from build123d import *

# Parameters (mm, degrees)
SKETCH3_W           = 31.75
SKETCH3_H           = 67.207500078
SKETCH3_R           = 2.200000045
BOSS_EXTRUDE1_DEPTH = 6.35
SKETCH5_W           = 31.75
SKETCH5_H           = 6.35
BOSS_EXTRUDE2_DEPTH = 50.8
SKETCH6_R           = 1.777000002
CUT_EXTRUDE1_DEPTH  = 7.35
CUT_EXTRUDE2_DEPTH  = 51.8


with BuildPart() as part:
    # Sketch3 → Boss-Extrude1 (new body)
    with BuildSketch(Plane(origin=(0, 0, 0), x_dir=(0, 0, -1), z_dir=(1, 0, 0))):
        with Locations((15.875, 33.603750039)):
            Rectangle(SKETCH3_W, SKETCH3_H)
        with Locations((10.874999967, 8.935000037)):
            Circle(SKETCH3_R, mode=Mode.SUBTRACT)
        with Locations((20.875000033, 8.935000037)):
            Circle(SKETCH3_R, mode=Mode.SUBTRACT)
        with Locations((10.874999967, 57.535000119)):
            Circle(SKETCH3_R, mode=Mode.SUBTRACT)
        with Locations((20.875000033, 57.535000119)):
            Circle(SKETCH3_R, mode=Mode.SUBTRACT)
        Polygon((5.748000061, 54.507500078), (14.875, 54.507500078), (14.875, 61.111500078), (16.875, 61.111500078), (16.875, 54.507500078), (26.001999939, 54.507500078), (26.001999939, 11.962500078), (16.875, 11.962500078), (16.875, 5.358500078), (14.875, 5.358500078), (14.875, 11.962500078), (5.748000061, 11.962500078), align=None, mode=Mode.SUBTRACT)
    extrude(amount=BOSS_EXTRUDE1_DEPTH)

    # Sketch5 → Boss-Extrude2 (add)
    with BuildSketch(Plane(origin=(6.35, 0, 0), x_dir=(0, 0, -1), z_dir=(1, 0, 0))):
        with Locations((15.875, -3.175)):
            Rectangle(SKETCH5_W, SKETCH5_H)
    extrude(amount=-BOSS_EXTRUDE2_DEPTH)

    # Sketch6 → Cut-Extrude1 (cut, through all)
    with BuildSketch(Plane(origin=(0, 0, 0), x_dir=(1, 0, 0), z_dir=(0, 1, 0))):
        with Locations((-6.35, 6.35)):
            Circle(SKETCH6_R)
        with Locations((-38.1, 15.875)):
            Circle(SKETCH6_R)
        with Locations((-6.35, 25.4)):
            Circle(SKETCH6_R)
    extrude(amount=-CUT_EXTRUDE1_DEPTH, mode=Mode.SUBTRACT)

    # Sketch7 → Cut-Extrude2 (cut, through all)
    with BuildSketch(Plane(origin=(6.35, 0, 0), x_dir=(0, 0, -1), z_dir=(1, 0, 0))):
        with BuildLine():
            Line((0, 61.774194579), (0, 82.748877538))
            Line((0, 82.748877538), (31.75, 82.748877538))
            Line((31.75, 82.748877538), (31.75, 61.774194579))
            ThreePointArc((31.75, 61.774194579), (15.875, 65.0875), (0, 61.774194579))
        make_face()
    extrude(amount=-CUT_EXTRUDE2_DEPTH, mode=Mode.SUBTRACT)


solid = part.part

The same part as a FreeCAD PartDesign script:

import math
import FreeCAD as App
import Part
import Sketcher

V = App.Vector
Q = App.Units.Quantity

doc = App.newDocument("Part")
body = doc.addObject("PartDesign::Body", "Body")

# Sketch on YZ plane
sketch1 = doc.addObject("Sketcher::SketchObject", "Sketch")
body.addObject(sketch1)
sketch1.AttachmentSupport = (doc.YZ_Plane, [""])
sketch1.MapMode = "FlatFace"
sketch1.addGeometry([
    Part.LineSegment(V(67.2, 0, 0), V(0, 0, 0)),  # 0
    Part.LineSegment(V(0, 0, 0), V(0, -31.8, 0)),  # 1
    Part.LineSegment(V(0, -31.8, 0), V(67.2, -31.8, 0)),  # 2
    Part.LineSegment(V(67.2, -31.8, 0), V(67.2, 0, 0)),  # 3
    Part.Circle(V(8.9, -10.9, 0), V(0, 0, 1), 2.2),  # 4
    Part.Circle(V(8.9, -20.9, 0), V(0, 0, 1), 2.2),  # 5
    Part.Circle(V(57.5, -10.9, 0), V(0, 0, 1), 2.2),  # 6
    Part.LineSegment(V(12, -5.7, 0), V(54.5, -5.7, 0)),  # 7
    Part.LineSegment(V(54.5, -5.7, 0), V(54.5, -14.9, 0)),  # 8
    Part.LineSegment(V(54.5, -14.9, 0), V(61.1, -14.9, 0)),  # 9
    Part.LineSegment(V(61.1, -14.9, 0), V(61.1, -16.9, 0)),  # 10
    Part.LineSegment(V(61.1, -16.9, 0), V(54.5, -16.9, 0)),  # 11
    Part.LineSegment(V(54.5, -16.9, 0), V(54.5, -26, 0)),  # 12
    Part.LineSegment(V(54.5, -26, 0), V(12, -26, 0)),  # 13
    Part.LineSegment(V(12, -26, 0), V(12, -16.9, 0)),  # 14
    Part.LineSegment(V(12, -16.9, 0), V(5.4, -16.9, 0)),  # 15
    Part.LineSegment(V(5.4, -16.9, 0), V(5.4, -14.9, 0)),  # 16
    Part.LineSegment(V(5.4, -14.9, 0), V(12, -14.9, 0)),  # 17
    Part.LineSegment(V(12, -14.9, 0), V(12, -5.7, 0)),  # 18
    Part.Circle(V(57.5, -20.9, 0), V(0, 0, 1), 2.2),  # 19
], False)
sketch1.addConstraint([
    Sketcher.Constraint("Coincident", 0, 2, 1, 1),
    Sketcher.Constraint("Coincident", 1, 2, 2, 1),
    Sketcher.Constraint("Coincident", 2, 2, 3, 1),
    Sketcher.Constraint("Coincident", 3, 2, 0, 1),
    Sketcher.Constraint("Coincident", 7, 2, 8, 1),
    Sketcher.Constraint("Coincident", 8, 2, 9, 1),
    Sketcher.Constraint("Coincident", 9, 2, 10, 1),
    Sketcher.Constraint("Coincident", 10, 2, 11, 1),
    Sketcher.Constraint("Coincident", 11, 2, 12, 1),
    Sketcher.Constraint("Coincident", 12, 2, 13, 1),
    Sketcher.Constraint("Coincident", 13, 2, 14, 1),
    Sketcher.Constraint("Coincident", 14, 2, 15, 1),
    Sketcher.Constraint("Coincident", 15, 2, 16, 1),
    Sketcher.Constraint("Coincident", 16, 2, 17, 1),
    Sketcher.Constraint("Coincident", 17, 2, 18, 1),
    Sketcher.Constraint("Coincident", 18, 2, 7, 1),
    Sketcher.Constraint("Horizontal", 0),
    Sketcher.Constraint("Vertical", 1),
    Sketcher.Constraint("Horizontal", 2),
    Sketcher.Constraint("Vertical", 3),
    Sketcher.Constraint("Horizontal", 7),
    Sketcher.Constraint("Vertical", 8),
    Sketcher.Constraint("Horizontal", 9),
    Sketcher.Constraint("Vertical", 10),
    Sketcher.Constraint("Horizontal", 11),
    Sketcher.Constraint("Vertical", 12),
    Sketcher.Constraint("Horizontal", 13),
    Sketcher.Constraint("Vertical", 14),
    Sketcher.Constraint("Horizontal", 15),
    Sketcher.Constraint("Vertical", 16),
    Sketcher.Constraint("Horizontal", 17),
    Sketcher.Constraint("Vertical", 18),
    Sketcher.Constraint("Coincident", 0, 2, -1, 1),
    Sketcher.Constraint("Equal", 4, 5),
    Sketcher.Constraint("Equal", 5, 6),
    Sketcher.Constraint("Equal", 6, 19),
    Sketcher.Constraint("Horizontal", 4, 3, 6, 3),
    Sketcher.Constraint("Horizontal", 5, 3, 19, 3),
    Sketcher.Constraint("Horizontal", 11, 2, 14, 2),
    Sketcher.Constraint("Horizontal", 9, 2, 16, 2),
    Sketcher.Constraint("Vertical", 4, 3, 5, 3),
    Sketcher.Constraint("Vertical", 6, 3, 19, 3),
    Sketcher.Constraint("Vertical", 8, 2, 11, 2),
    Sketcher.Constraint("Vertical", 14, 2, 17, 2),
    Sketcher.Constraint("Equal", 11, 15),
    Sketcher.Constraint("Equal", 8, 12),
    Sketcher.Constraint("DistanceX", 9, 1, 9, 2, Q("0.26 in")),
    Sketcher.Constraint("DistanceY", 1, 2, 1, 1, Q("1.25 in")),
    Sketcher.Constraint("DistanceX", 7, 2, 3, 2, Q("0.5 in")),
    Sketcher.Constraint("Diameter", 4, 4.4),
    Sketcher.Constraint("DistanceX", 7, 1, 7, 2, Q("1.675 in")),
    Sketcher.Constraint("DistanceX", 0, 2, 0, 1, 67.2075),
    Sketcher.Constraint("DistanceY", 8, 2, 8, 1, 9.127),
    Sketcher.Constraint("DistanceY", 10, 2, 10, 1, 2.0),
    Sketcher.Constraint("DistanceX", -1, 1, 4, 3, 8.935),
    Sketcher.Constraint("DistanceY", 4, 3, -1, 1, 10.875),
    Sketcher.Constraint("DistanceY", 5, 3, -1, 1, 20.875),
    Sketcher.Constraint("DistanceX", -1, 1, 6, 3, 57.535),
    Sketcher.Constraint("DistanceY", 7, 2, -1, 1, 5.748),
])
pad1 = doc.addObject("PartDesign::Pad", "Pad")
body.addObject(pad1)
pad1.Profile = sketch1
pad1.Length = Q("0.25 in")

# Sketch on YZ plane
sketch2 = doc.addObject("Sketcher::SketchObject", "Sketch001")
body.addObject(sketch2)
sketch2.AttachmentSupport = (doc.YZ_Plane, [""])
sketch2.MapMode = "FlatFace"
sketch2.AttachmentOffset = App.Placement(V(0, 0, 0.25 * 25.4), App.Rotation())
sketch2.addGeometry([
    Part.LineSegment(V(0, 0, 0), V(-6, 0, 0)),
    Part.LineSegment(V(-6, 0, 0), V(-6, -32, 0)),
    Part.LineSegment(V(-6, -32, 0), V(0, -32, 0)),
    Part.LineSegment(V(0, -32, 0), V(0, 0, 0)),
], False)
sketch2.addConstraint([
    Sketcher.Constraint("Coincident", 0, 2, 1, 1),
    Sketcher.Constraint("Coincident", 1, 2, 2, 1),
    Sketcher.Constraint("Coincident", 2, 2, 3, 1),
    Sketcher.Constraint("Coincident", 3, 2, 0, 1),
    Sketcher.Constraint("Horizontal", 0),
    Sketcher.Constraint("Vertical", 1),
    Sketcher.Constraint("Horizontal", 2),
    Sketcher.Constraint("Vertical", 3),
    Sketcher.Constraint("Coincident", 3, 2, -1, 1),
    Sketcher.Constraint("DistanceX", 0, 2, 0, 1, Q("0.25 in")),
    Sketcher.Constraint("DistanceY", 1, 2, 1, 1, Q("1.25 in")),
])
pad2 = doc.addObject("PartDesign::Pad", "Pad001")
body.addObject(pad2)
pad2.Profile = sketch2
pad2.Length = Q("2 in")
pad2.Reversed = True

# Sketch on XZ plane
sketch3 = doc.addObject("Sketcher::SketchObject", "Sketch002")
body.addObject(sketch3)
sketch3.AttachmentSupport = (doc.XZ_Plane, [""])
sketch3.MapMode = "FlatFace"
sketch3.addGeometry([
    Part.Circle(V(-6.3, -6.3, 0), V(0, 0, 1), 1.8),
    Part.Circle(V(-38.1, -15.9, 0), V(0, 0, 1), 1.8),
    Part.Circle(V(-6.3, -25.4, 0), V(0, 0, 1), 1.8),
], False)
sketch3.addConstraint([
    Sketcher.Constraint("Equal", 0, 1),
    Sketcher.Constraint("Equal", 1, 2),
    Sketcher.Constraint("Vertical", 0, 3, 2, 3),
    Sketcher.Constraint("DistanceY", 2, 3, -1, 1, Q("1 in")),
    Sketcher.Constraint("DistanceX", 1, 3, -1, 1, Q("1.5 in")),
    Sketcher.Constraint("Diameter", 0, 3.554),
    Sketcher.Constraint("DistanceX", 0, 3, -1, 1, Q("0.25 in")),
    Sketcher.Constraint("DistanceY", 0, 3, -1, 1, Q("0.25 in")),
    Sketcher.Constraint("DistanceY", 1, 3, -1, 1, Q("0.625 in")),
])
pocket1 = doc.addObject("PartDesign::Pocket", "Pocket")
body.addObject(pocket1)
pocket1.Profile = sketch3
pocket1.Type = "ThroughAll"
pocket1.Reversed = True

# Sketch on YZ plane
sketch4 = doc.addObject("Sketcher::SketchObject", "Sketch003")
body.addObject(sketch4)
sketch4.AttachmentSupport = (doc.YZ_Plane, [""])
sketch4.MapMode = "FlatFace"
sketch4.AttachmentOffset = App.Placement(V(0, 0, 0.25 * 25.4), App.Rotation())
sketch4.addGeometry([
    Part.LineSegment(V(83, 0, 0), V(62, 0, 0)),
    Part.ArcOfCircle(Part.Circle(V(25, -16, 0), V(0, 0, 1), 40), math.radians(-24), math.radians(24)),
    Part.LineSegment(V(62, -32, 0), V(83, -32, 0)),
    Part.LineSegment(V(83, -32, 0), V(83, 0, 0)),
], False)
sketch4.addConstraint([
    Sketcher.Constraint("Coincident", 0, 2, 1, 2),
    Sketcher.Constraint("Coincident", 1, 1, 2, 1),
    Sketcher.Constraint("Coincident", 2, 2, 3, 1),
    Sketcher.Constraint("Coincident", 3, 2, 0, 1),
    Sketcher.Constraint("Horizontal", 0),
    Sketcher.Constraint("Horizontal", 2),
    Sketcher.Constraint("Vertical", 3),
    Sketcher.Constraint("PointOnObject", 0, 2, -1),
    Sketcher.Constraint("Vertical", 0, 2, 1, 1),
    Sketcher.Constraint("DistanceX", -1, 1, 1, 3, Q("1 in")),
    Sketcher.Constraint("Radius", 1, Q("1.5625 in")),
    Sketcher.Constraint("DistanceY", 3, 1, 3, 2, Q("1.25 in")),
    Sketcher.Constraint("DistanceX", 0, 2, 0, 1, 20.974683),
])
pocket2 = doc.addObject("PartDesign::Pocket", "Pocket001")
body.addObject(pocket2)
pocket2.Profile = sketch4
pocket2.Type = "ThroughAll"

doc.recompute()
